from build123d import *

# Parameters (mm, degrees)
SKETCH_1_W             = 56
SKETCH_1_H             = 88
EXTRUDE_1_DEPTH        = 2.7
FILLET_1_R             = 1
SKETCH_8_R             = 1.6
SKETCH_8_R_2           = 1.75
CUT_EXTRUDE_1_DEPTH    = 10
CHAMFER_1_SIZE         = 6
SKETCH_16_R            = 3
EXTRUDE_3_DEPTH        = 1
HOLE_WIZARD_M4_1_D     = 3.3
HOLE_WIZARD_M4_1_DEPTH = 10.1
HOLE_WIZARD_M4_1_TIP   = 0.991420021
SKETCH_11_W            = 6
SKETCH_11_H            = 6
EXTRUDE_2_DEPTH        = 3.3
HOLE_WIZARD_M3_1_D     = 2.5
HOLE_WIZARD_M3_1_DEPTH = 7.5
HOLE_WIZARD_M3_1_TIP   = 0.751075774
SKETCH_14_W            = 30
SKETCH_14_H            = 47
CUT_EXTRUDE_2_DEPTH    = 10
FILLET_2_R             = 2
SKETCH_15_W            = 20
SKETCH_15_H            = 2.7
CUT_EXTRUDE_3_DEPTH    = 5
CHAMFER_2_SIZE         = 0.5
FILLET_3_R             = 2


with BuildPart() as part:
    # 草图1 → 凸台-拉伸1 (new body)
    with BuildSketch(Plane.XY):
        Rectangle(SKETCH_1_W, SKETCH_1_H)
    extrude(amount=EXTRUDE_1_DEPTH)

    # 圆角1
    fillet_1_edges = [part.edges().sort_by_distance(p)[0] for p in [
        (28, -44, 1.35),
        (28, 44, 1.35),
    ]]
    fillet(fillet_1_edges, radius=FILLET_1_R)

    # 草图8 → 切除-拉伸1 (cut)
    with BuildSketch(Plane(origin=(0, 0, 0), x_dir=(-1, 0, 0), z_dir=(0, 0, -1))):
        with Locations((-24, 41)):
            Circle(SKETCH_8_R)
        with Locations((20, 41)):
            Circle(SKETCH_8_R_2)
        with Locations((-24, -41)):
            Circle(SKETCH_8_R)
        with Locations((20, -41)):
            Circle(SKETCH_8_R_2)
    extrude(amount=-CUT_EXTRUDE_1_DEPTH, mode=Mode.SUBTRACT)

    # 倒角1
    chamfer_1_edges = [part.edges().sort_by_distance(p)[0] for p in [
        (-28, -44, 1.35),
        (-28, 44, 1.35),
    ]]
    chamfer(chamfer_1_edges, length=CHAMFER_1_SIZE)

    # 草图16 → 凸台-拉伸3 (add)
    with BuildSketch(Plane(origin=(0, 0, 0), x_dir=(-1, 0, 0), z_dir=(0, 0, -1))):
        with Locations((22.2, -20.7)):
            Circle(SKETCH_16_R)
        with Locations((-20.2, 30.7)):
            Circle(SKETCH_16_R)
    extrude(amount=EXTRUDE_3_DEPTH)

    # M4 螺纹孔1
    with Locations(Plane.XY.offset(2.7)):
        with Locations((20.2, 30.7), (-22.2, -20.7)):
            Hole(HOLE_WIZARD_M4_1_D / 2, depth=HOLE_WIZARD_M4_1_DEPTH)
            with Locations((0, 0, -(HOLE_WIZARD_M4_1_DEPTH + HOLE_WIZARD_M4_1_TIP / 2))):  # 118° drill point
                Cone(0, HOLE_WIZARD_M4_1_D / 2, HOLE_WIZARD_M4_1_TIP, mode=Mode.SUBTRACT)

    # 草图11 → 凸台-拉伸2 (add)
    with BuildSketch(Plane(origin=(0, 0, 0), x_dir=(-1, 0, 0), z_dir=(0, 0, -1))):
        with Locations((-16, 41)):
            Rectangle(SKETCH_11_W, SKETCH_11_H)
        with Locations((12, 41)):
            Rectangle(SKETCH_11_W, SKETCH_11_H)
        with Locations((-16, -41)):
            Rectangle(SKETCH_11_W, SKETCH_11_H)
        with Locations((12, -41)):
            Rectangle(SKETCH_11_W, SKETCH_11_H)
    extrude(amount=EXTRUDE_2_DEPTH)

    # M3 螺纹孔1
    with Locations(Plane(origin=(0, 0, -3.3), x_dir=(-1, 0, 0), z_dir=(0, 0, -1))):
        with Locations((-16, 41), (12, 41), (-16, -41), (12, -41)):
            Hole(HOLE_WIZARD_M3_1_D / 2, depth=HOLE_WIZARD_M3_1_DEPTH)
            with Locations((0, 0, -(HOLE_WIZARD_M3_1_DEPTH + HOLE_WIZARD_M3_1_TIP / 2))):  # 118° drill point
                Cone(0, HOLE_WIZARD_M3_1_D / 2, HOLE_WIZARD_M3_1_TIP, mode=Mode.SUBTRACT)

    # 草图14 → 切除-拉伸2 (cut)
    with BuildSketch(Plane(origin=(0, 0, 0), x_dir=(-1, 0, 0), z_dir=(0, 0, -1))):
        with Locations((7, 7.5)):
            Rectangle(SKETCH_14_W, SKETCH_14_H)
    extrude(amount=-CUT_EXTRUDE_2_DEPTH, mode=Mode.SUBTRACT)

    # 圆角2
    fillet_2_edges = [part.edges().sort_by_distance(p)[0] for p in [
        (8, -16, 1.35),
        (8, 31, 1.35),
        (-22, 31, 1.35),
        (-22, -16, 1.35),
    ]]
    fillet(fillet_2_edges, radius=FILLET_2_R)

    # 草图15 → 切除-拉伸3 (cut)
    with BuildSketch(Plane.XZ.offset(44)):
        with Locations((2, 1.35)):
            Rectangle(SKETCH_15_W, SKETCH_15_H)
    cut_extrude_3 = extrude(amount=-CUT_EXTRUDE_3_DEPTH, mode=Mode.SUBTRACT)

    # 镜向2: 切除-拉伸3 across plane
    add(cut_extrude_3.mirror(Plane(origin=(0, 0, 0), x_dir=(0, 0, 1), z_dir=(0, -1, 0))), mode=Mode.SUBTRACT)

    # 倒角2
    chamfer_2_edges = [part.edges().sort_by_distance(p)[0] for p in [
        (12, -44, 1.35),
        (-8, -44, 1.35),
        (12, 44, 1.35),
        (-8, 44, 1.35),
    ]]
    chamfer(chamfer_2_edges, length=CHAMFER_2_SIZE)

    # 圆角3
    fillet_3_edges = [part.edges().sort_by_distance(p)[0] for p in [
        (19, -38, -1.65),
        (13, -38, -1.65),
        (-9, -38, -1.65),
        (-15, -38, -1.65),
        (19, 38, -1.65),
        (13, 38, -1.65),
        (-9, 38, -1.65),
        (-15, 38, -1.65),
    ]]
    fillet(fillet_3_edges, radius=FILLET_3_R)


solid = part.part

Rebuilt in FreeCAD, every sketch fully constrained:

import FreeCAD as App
import Part
import Sketcher

V = App.Vector
Q = App.Units.Quantity


def edges_at(feature, points):
    """Names of the edges that pass closest to the given points."""
    edges = feature.Shape.Edges
    near = lambda p: min(range(len(edges)), key=lambda i: edges[i].distToShape(Part.Vertex(*p))[0])
    return sorted({f"Edge{near(p) + 1}" for p in points})


def add_polygon(sketch, points):
    """Adds a closed chain of lines whose ends are joined by coincident constraints."""
    first, n = sketch.GeometryCount, len(points)
    for a, b in zip(points, points[1:] + points[:1]):
        sketch.addGeometry(Part.LineSegment(App.Vector(*a, 0), App.Vector(*b, 0)), False)
    for i in range(n):
        sketch.addConstraint(Sketcher.Constraint("Coincident", first + i, 2, first + (i + 1) % n, 1))

doc = App.newDocument("Part")
params = doc.addObject("Spreadsheet::Sheet", "Params")
for row, (alias, value) in enumerate([
    ("sketch1_width", "56 mm"),
    ("sketch1_height", "88 mm"),
    ("pad1_length", "2.7 mm"),
    ("fillet_radius", "1 mm"),
    ("sketch2_diameter", "3.2 mm"),
    ("sketch2_diameter2", "3.5 mm"),
    ("pocket1_length", "10 mm"),
    ("chamfer_size", "6 mm"),
    ("sketch3_diameter", "6 mm"),
    ("pad2_length", "1 mm"),
    ("sketch4_diameter", "3.3 mm"),
    ("hole_diameter", "3.3 mm"),
    ("hole_depth", "10.1 mm"),
    ("sketch5_width", "6 mm"),
    ("pad3_length", "3.3 mm"),
    ("sketch6_diameter", "2.5 mm"),
    ("hole2_diameter", "2.5 mm"),
    ("hole2_depth", "7.5 mm"),
    ("sketch7_width", "30 mm"),
    ("sketch7_height", "47 mm"),
    ("pocket2_length", "10 mm"),
    ("fillet2_radius", "2 mm"),
    ("sketch8_width", "20 mm"),
    ("sketch8_height", "2.7 mm"),
    ("pocket3_length", "5 mm"),
    ("chamfer2_size", "0.5 mm"),
    ("fillet3_radius", "2 mm"),
], start=1):
    params.set(f"A{row}", alias)
    params.set(f"B{row}", "=" + value)
    params.setAlias(f"B{row}", alias)

body = doc.addObject("PartDesign::Body", "Body")

# Sketch on XY plane
sketch1 = body.newObject("Sketcher::SketchObject", "Sketch")
sketch1.AttachmentSupport = (doc.getObject("XY_Plane"), [""])
sketch1.MapMode = "FlatFace"
add_polygon(sketch1, [(-28, 44), (-28, -44), (28, -44), (28, 44)])  # lines 0-3
sketch1.addConstraint(Sketcher.Constraint("Vertical", 0))
sketch1.addConstraint(Sketcher.Constraint("Horizontal", 1))
sketch1.addConstraint(Sketcher.Constraint("Vertical", 2))
sketch1.addConstraint(Sketcher.Constraint("Horizontal", 3))
sketch1.addConstraint(Sketcher.Constraint("Symmetric", 0, 2, 2, 2, -1, 1))
sketch1.addConstraint(Sketcher.Constraint("DistanceX", 1, 1, 1, 2, Q("56 mm")))
sketch1.addConstraint(Sketcher.Constraint("DistanceY", 0, 2, 0, 1, Q("88 mm")))
sketch1.setExpression("Constraints[9]", "Params.sketch1_width")
sketch1.setExpression("Constraints[10]", "Params.sketch1_height")
pad1 = body.newObject("PartDesign::Pad", "Pad")
pad1.Profile = sketch1
pad1.setExpression("Length", "Params.pad1_length")
doc.recompute()

fillet = body.newObject("PartDesign::Fillet", "Fillet")
fillet.Base = (pad1, edges_at(pad1, [(28, -44, 1.35), (28, 44, 1.35)]))
fillet.setExpression("Radius", "Params.fillet_radius")

# Sketch on XY plane
sketch2 = body.newObject("Sketcher::SketchObject", "Sketch001")
sketch2.AttachmentSupport = (doc.getObject("XY_Plane"), [""])
sketch2.MapMode = "FlatFace"
sketch2.addGeometry(Part.Circle(V(24, 41, 0), V(0, 0, 1), 1.6), False)
sketch2.addGeometry(Part.Circle(V(-20, 41, 0), V(0, 0, 1), 1.8), False)
sketch2.addGeometry(Part.Circle(V(24, -41, 0), V(0, 0, 1), 1.6), False)
sketch2.addGeometry(Part.Circle(V(-20, -41, 0), V(0, 0, 1), 1.8), False)
sketch2.addConstraint(Sketcher.Constraint("Equal", 0, 2))
sketch2.addConstraint(Sketcher.Constraint("Equal", 1, 3))
sketch2.addConstraint(Sketcher.Constraint("Symmetric", 0, 3, 2, 3, -1))
sketch2.addConstraint(Sketcher.Constraint("Symmetric", 1, 3, 3, 3, -1))
sketch2.addConstraint(Sketcher.Constraint("Horizontal", 0, 3, 1, 3))
sketch2.addConstraint(Sketcher.Constraint("Diameter", 0, Q("3.2 mm")))
sketch2.addConstraint(Sketcher.Constraint("Diameter", 1, Q("3.5 mm")))
sketch2.addConstraint(Sketcher.Constraint("DistanceX", -1, 1, 0, 3, Q("24 mm")))
sketch2.addConstraint(Sketcher.Constraint("DistanceY", -1, 1, 0, 3, Q("41 mm")))
sketch2.addConstraint(Sketcher.Constraint("DistanceX", 1, 3, -1, 1, Q("20 mm")))
sketch2.setExpression("Constraints[5]", "Params.sketch2_diameter")
sketch2.setExpression("Constraints[6]", "Params.sketch2_diameter2")
pocket1 = body.newObject("PartDesign::Pocket", "Pocket")
pocket1.Profile = sketch2
pocket1.setExpression("Length", "Params.pocket1_length")
pocket1.Reversed = True
doc.recompute()

chamfer = body.newObject("PartDesign::Chamfer", "Chamfer")
chamfer.Base = (pocket1, edges_at(pocket1, [(-28, -44, 1.35), (-28, 44, 1.35)]))
chamfer.setExpression("Size", "Params.chamfer_size")

# Sketch on XY plane
sketch3 = body.newObject("Sketcher::SketchObject", "Sketch002")
sketch3.AttachmentSupport = (doc.getObject("XY_Plane"), [""])
sketch3.MapMode = "FlatFace"
sketch3.addGeometry(Part.Circle(V(-22.2, -20.7, 0), V(0, 0, 1), 3), False)
sketch3.addGeometry(Part.Circle(V(20.2, 30.7, 0), V(0, 0, 1), 3), False)
sketch3.addConstraint(Sketcher.Constraint("Equal", 0, 1))
sketch3.addConstraint(Sketcher.Constraint("Diameter", 0, Q("6 mm")))
sketch3.addConstraint(Sketcher.Constraint("DistanceX", 0, 3, -1, 1, Q("22.2 mm")))
sketch3.addConstraint(Sketcher.Constraint("DistanceY", 0, 3, -1, 1, Q("20.7 mm")))
sketch3.addConstraint(Sketcher.Constraint("DistanceX", -1, 1, 1, 3, Q("20.2 mm")))
sketch3.addConstraint(Sketcher.Constraint("DistanceY", -1, 1, 1, 3, Q("30.7 mm")))
sketch3.setExpression("Constraints[1]", "Params.sketch3_diameter")
pad2 = body.newObject("PartDesign::Pad", "Pad001")
pad2.Profile = sketch3
pad2.setExpression("Length", "Params.pad2_length")
pad2.Reversed = True

# Sketch on XY plane
sketch4 = body.newObject("Sketcher::SketchObject", "Sketch003")
sketch4.AttachmentSupport = (doc.getObject("XY_Plane"), [""])
sketch4.MapMode = "FlatFace"
sketch4.AttachmentOffset = App.Placement(V(0, 0, 2.7), App.Rotation())
sketch4.addGeometry(Part.Circle(V(20.2, 30.7, 0), V(0, 0, 1), 1.6), False)
sketch4.addGeometry(Part.Circle(V(-22.2, -20.7, 0), V(0, 0, 1), 1.6), False)
sketch4.addConstraint(Sketcher.Constraint("Equal", 0, 1))
sketch4.addConstraint(Sketcher.Constraint("Diameter", 0, Q("3.3 mm")))
sketch4.addConstraint(Sketcher.Constraint("DistanceX", -1, 1, 0, 3, Q("20.2 mm")))
sketch4.addConstraint(Sketcher.Constraint("DistanceY", -1, 1, 0, 3, Q("30.7 mm")))
sketch4.addConstraint(Sketcher.Constraint("DistanceX", 1, 3, -1, 1, Q("22.2 mm")))
sketch4.addConstraint(Sketcher.Constraint("DistanceY", 1, 3, -1, 1, Q("20.7 mm")))
sketch4.setExpression("Constraints[1]", "Params.sketch4_diameter")
doc.recompute()
hole = body.newObject("PartDesign::Hole", "Hole")
hole.Profile = sketch4
hole.ThreadType = "None"
hole.setExpression("Diameter", "Params.hole_diameter")
hole.DepthType = "Dimension"
hole.setExpression("Depth", "Params.hole_depth")
hole.DrillPoint = "Angled"
hole.DrillPointAngle = 118

# Sketch on XY plane
sketch5 = body.newObject("Sketcher::SketchObject", "Sketch004")
sketch5.AttachmentSupport = (doc.getObject("XY_Plane"), [""])
sketch5.MapMode = "FlatFace"
add_polygon(sketch5, [(19, 44), (19, 38), (13, 38), (13, 44)])  # lines 0-3
add_polygon(sketch5, [(-9, 44), (-9, 38), (-15, 38), (-15, 44)])  # lines 4-7
add_polygon(sketch5, [(19, -38), (19, -44), (13, -44), (13, -38)])  # lines 8-11
add_polygon(sketch5, [(-9, -38), (-9, -44), (-15, -44), (-15, -38)])  # lines 12-15
sketch5.addConstraint(Sketcher.Constraint("Vertical", 0))
sketch5.addConstraint(Sketcher.Constraint("Horizontal", 1))
sketch5.addConstraint(Sketcher.Constraint("Vertical", 2))
sketch5.addConstraint(Sketcher.Constraint("Horizontal", 3))
sketch5.addConstraint(Sketcher.Constraint("Vertical", 4))
sketch5.addConstraint(Sketcher.Constraint("Horizontal", 5))
sketch5.addConstraint(Sketcher.Constraint("Vertical", 6))
sketch5.addConstraint(Sketcher.Constraint("Horizontal", 7))
sketch5.addConstraint(Sketcher.Constraint("Vertical", 8))
sketch5.addConstraint(Sketcher.Constraint("Horizontal", 9))
sketch5.addConstraint(Sketcher.Constraint("Vertical", 10))
sketch5.addConstraint(Sketcher.Constraint("Horizontal", 11))
sketch5.addConstraint(Sketcher.Constraint("Vertical", 12))
sketch5.addConstraint(Sketcher.Constraint("Horizontal", 13))
sketch5.addConstraint(Sketcher.Constraint("Vertical", 14))
sketch5.addConstraint(Sketcher.Constraint("Horizontal", 15))
sketch5.addConstraint(Sketcher.Constraint("Symmetric", 3, 2, 8, 2, -1))
sketch5.addConstraint(Sketcher.Constraint("Symmetric", 1, 2, 10, 2, -1))
sketch5.addConstraint(Sketcher.Constraint("Symmetric", 7, 2, 12, 2, -1))
sketch5.addConstraint(Sketcher.Constraint("Symmetric", 5, 2, 14, 2, -1))
sketch5.addConstraint(Sketcher.Constraint("Horizontal", 1, 2, 4, 2))
sketch5.addConstraint(Sketcher.Constraint("Horizontal", 3, 2, 6, 2))
sketch5.addConstraint(Sketcher.Constraint("Equal", 3, 5))
sketch5.addConstraint(Sketcher.Constraint("Equal", 15, 0))
sketch5.addConstraint(Sketcher.Constraint("DistanceX", 1, 2, 1, 1, Q("6 mm")))
sketch5.addConstraint(Sketcher.Constraint("DistanceX", -1, 1, 0, 2, Q("19 mm")))
sketch5.addConstraint(Sketcher.Constraint("DistanceY", -1, 1, 0, 2, Q("38 mm")))
sketch5.addConstraint(Sketcher.Constraint("DistanceX", 4, 2, -1, 1, Q("9 mm")))
sketch5.setExpression("Constraints[40]", "Params.sketch5_width")
pad3 = body.newObject("PartDesign::Pad", "Pad002")
pad3.Profile = sketch5
pad3.setExpression("Length", "Params.pad3_length")
pad3.Reversed = True

# Sketch on XY plane
sketch6 = body.newObject("Sketcher::SketchObject", "Sketch005")
sketch6.AttachmentSupport = (doc.getObject("XY_Plane"), [""])
sketch6.MapMode = "FlatFace"
sketch6.AttachmentOffset = App.Placement(V(0, 0, -3.3), App.Rotation())
sketch6.addGeometry(Part.Circle(V(16, 41, 0), V(0, 0, 1), 1.2), False)
sketch6.addGeometry(Part.Circle(V(-12, 41, 0), V(0, 0, 1), 1.2), False)
sketch6.addGeometry(Part.Circle(V(16, -41, 0), V(0, 0, 1), 1.2), False)
sketch6.addGeometry(Part.Circle(V(-12, -41, 0), V(0, 0, 1), 1.2), False)
sketch6.addConstraint(Sketcher.Constraint("Equal", 0, 1))
sketch6.addConstraint(Sketcher.Constraint("Equal", 1, 2))
sketch6.addConstraint(Sketcher.Constraint("Equal", 2, 3))
sketch6.addConstraint(Sketcher.Constraint("Symmetric", 0, 3, 2, 3, -1))
sketch6.addConstraint(Sketcher.Constraint("Symmetric", 1, 3, 3, 3, -1))
sketch6.addConstraint(Sketcher.Constraint("Horizontal", 0, 3, 1, 3))
sketch6.addConstraint(Sketcher.Constraint("Diameter", 0, Q("2.5 mm")))
sketch6.addConstraint(Sketcher.Constraint("DistanceX", -1, 1, 0, 3, Q("16 mm")))
sketch6.addConstraint(Sketcher.Constraint("DistanceY", -1, 1, 0, 3, Q("41 mm")))
sketch6.addConstraint(Sketcher.Constraint("DistanceX", 1, 3, -1, 1, Q("12 mm")))
sketch6.setExpression("Constraints[6]", "Params.sketch6_diameter")
doc.recompute()
hole2 = body.newObject("PartDesign::Hole", "Hole001")
hole2.Profile = sketch6
hole2.ThreadType = "None"
hole2.setExpression("Diameter", "Params.hole2_diameter")
hole2.DepthType = "Dimension"
hole2.setExpression("Depth", "Params.hole2_depth")
hole2.DrillPoint = "Angled"
hole2.DrillPointAngle = 118
hole2.Reversed = True

# Sketch on XY plane
sketch7 = body.newObject("Sketcher::SketchObject", "Sketch006")
sketch7.AttachmentSupport = (doc.getObject("XY_Plane"), [""])
sketch7.MapMode = "FlatFace"
add_polygon(sketch7, [(8, 31), (8, -16), (-22, -16), (-22, 31)])  # lines 0-3
sketch7.addConstraint(Sketcher.Constraint("Vertical", 0))
sketch7.addConstraint(Sketcher.Constraint("Horizontal", 1))
sketch7.addConstraint(Sketcher.Constraint("Vertical", 2))
sketch7.addConstraint(Sketcher.Constraint("Horizontal", 3))
sketch7.addConstraint(Sketcher.Constraint("DistanceX", 1, 2, 1, 1, Q("30 mm")))
sketch7.addConstraint(Sketcher.Constraint("DistanceY", 0, 2, 0, 1, Q("47 mm")))
sketch7.addConstraint(Sketcher.Constraint("DistanceX", -1, 1, 0, 2, Q("8 mm")))
sketch7.addConstraint(Sketcher.Constraint("DistanceY", 0, 2, -1, 1, Q("16 mm")))
sketch7.setExpression("Constraints[8]", "Params.sketch7_width")
sketch7.setExpression("Constraints[9]", "Params.sketch7_height")
pocket2 = body.newObject("PartDesign::Pocket", "Pocket001")
pocket2.Profile = sketch7
pocket2.setExpression("Length", "Params.pocket2_length")
pocket2.Reversed = True
doc.recompute()

fillet2 = body.newObject("PartDesign::Fillet", "Fillet001")
fillet2.Base = (pocket2, edges_at(pocket2, [
    (8, -16, 1.35),
    (8, 31, 1.35),
    (-22, 31, 1.35),
    (-22, -16, 1.35),
]))
fillet2.setExpression("Radius", "Params.fillet2_radius")

# Sketch on XZ plane
sketch8 = body.newObject("Sketcher::SketchObject", "Sketch007")
sketch8.AttachmentSupport = (doc.getObject("XZ_Plane"), [""])
sketch8.MapMode = "FlatFace"
sketch8.AttachmentOffset = App.Placement(V(0, 0, 44), App.Rotation())
add_polygon(sketch8, [(-8, 2.7), (-8, 0), (12, 0), (12, 2.7)])  # lines 0-3
sketch8.addConstraint(Sketcher.Constraint("Vertical", 0))
sketch8.addConstraint(Sketcher.Constraint("Horizontal", 1))
sketch8.addConstraint(Sketcher.Constraint("Vertical", 2))
sketch8.addConstraint(Sketcher.Constraint("Horizontal", 3))
sketch8.addConstraint(Sketcher.Constraint("PointOnObject", 0, 2, -1))
sketch8.addConstraint(Sketcher.Constraint("DistanceX", 1, 1, 1, 2, Q("20 mm")))
sketch8.addConstraint(Sketcher.Constraint("DistanceY", 0, 2, 0, 1, Q("2.7 mm")))
sketch8.addConstraint(Sketcher.Constraint("DistanceX", 0, 2, -1, 1, Q("8 mm")))
sketch8.setExpression("Constraints[9]", "Params.sketch8_width")
sketch8.setExpression("Constraints[10]", "Params.sketch8_height")
pocket3 = body.newObject("PartDesign::Pocket", "Pocket002")
pocket3.Profile = sketch8
pocket3.setExpression("Length", "Params.pocket3_length")
doc.recompute()

mirrored = body.newObject("PartDesign::Mirrored", "Mirrored")
mirrored.Originals = [pocket3]
mirrored.MirrorPlane = (doc.getObject("XZ_Plane"), [""])
body.Tip = mirrored
doc.recompute()

chamfer2 = body.newObject("PartDesign::Chamfer", "Chamfer001")
chamfer2.Base = (mirrored, edges_at(mirrored, [
    (12, -44, 1.35),
    (-8, -44, 1.35),
    (12, 44, 1.35),
    (-8, 44, 1.35),
]))
chamfer2.setExpression("Size", "Params.chamfer2_size")
doc.recompute()

fillet3 = body.newObject("PartDesign::Fillet", "Fillet002")
fillet3.Base = (chamfer2, edges_at(chamfer2, [
    (19, -38, -1.65),
    (13, -38, -1.65),
    (-9, -38, -1.65),
    (-15, -38, -1.65),
    (19, 38, -1.65),
    (13, 38, -1.65),
    (-9, 38, -1.65),
    (-15, 38, -1.65),
]))
fillet3.setExpression("Radius", "Params.fillet3_radius")

doc.recompute()
